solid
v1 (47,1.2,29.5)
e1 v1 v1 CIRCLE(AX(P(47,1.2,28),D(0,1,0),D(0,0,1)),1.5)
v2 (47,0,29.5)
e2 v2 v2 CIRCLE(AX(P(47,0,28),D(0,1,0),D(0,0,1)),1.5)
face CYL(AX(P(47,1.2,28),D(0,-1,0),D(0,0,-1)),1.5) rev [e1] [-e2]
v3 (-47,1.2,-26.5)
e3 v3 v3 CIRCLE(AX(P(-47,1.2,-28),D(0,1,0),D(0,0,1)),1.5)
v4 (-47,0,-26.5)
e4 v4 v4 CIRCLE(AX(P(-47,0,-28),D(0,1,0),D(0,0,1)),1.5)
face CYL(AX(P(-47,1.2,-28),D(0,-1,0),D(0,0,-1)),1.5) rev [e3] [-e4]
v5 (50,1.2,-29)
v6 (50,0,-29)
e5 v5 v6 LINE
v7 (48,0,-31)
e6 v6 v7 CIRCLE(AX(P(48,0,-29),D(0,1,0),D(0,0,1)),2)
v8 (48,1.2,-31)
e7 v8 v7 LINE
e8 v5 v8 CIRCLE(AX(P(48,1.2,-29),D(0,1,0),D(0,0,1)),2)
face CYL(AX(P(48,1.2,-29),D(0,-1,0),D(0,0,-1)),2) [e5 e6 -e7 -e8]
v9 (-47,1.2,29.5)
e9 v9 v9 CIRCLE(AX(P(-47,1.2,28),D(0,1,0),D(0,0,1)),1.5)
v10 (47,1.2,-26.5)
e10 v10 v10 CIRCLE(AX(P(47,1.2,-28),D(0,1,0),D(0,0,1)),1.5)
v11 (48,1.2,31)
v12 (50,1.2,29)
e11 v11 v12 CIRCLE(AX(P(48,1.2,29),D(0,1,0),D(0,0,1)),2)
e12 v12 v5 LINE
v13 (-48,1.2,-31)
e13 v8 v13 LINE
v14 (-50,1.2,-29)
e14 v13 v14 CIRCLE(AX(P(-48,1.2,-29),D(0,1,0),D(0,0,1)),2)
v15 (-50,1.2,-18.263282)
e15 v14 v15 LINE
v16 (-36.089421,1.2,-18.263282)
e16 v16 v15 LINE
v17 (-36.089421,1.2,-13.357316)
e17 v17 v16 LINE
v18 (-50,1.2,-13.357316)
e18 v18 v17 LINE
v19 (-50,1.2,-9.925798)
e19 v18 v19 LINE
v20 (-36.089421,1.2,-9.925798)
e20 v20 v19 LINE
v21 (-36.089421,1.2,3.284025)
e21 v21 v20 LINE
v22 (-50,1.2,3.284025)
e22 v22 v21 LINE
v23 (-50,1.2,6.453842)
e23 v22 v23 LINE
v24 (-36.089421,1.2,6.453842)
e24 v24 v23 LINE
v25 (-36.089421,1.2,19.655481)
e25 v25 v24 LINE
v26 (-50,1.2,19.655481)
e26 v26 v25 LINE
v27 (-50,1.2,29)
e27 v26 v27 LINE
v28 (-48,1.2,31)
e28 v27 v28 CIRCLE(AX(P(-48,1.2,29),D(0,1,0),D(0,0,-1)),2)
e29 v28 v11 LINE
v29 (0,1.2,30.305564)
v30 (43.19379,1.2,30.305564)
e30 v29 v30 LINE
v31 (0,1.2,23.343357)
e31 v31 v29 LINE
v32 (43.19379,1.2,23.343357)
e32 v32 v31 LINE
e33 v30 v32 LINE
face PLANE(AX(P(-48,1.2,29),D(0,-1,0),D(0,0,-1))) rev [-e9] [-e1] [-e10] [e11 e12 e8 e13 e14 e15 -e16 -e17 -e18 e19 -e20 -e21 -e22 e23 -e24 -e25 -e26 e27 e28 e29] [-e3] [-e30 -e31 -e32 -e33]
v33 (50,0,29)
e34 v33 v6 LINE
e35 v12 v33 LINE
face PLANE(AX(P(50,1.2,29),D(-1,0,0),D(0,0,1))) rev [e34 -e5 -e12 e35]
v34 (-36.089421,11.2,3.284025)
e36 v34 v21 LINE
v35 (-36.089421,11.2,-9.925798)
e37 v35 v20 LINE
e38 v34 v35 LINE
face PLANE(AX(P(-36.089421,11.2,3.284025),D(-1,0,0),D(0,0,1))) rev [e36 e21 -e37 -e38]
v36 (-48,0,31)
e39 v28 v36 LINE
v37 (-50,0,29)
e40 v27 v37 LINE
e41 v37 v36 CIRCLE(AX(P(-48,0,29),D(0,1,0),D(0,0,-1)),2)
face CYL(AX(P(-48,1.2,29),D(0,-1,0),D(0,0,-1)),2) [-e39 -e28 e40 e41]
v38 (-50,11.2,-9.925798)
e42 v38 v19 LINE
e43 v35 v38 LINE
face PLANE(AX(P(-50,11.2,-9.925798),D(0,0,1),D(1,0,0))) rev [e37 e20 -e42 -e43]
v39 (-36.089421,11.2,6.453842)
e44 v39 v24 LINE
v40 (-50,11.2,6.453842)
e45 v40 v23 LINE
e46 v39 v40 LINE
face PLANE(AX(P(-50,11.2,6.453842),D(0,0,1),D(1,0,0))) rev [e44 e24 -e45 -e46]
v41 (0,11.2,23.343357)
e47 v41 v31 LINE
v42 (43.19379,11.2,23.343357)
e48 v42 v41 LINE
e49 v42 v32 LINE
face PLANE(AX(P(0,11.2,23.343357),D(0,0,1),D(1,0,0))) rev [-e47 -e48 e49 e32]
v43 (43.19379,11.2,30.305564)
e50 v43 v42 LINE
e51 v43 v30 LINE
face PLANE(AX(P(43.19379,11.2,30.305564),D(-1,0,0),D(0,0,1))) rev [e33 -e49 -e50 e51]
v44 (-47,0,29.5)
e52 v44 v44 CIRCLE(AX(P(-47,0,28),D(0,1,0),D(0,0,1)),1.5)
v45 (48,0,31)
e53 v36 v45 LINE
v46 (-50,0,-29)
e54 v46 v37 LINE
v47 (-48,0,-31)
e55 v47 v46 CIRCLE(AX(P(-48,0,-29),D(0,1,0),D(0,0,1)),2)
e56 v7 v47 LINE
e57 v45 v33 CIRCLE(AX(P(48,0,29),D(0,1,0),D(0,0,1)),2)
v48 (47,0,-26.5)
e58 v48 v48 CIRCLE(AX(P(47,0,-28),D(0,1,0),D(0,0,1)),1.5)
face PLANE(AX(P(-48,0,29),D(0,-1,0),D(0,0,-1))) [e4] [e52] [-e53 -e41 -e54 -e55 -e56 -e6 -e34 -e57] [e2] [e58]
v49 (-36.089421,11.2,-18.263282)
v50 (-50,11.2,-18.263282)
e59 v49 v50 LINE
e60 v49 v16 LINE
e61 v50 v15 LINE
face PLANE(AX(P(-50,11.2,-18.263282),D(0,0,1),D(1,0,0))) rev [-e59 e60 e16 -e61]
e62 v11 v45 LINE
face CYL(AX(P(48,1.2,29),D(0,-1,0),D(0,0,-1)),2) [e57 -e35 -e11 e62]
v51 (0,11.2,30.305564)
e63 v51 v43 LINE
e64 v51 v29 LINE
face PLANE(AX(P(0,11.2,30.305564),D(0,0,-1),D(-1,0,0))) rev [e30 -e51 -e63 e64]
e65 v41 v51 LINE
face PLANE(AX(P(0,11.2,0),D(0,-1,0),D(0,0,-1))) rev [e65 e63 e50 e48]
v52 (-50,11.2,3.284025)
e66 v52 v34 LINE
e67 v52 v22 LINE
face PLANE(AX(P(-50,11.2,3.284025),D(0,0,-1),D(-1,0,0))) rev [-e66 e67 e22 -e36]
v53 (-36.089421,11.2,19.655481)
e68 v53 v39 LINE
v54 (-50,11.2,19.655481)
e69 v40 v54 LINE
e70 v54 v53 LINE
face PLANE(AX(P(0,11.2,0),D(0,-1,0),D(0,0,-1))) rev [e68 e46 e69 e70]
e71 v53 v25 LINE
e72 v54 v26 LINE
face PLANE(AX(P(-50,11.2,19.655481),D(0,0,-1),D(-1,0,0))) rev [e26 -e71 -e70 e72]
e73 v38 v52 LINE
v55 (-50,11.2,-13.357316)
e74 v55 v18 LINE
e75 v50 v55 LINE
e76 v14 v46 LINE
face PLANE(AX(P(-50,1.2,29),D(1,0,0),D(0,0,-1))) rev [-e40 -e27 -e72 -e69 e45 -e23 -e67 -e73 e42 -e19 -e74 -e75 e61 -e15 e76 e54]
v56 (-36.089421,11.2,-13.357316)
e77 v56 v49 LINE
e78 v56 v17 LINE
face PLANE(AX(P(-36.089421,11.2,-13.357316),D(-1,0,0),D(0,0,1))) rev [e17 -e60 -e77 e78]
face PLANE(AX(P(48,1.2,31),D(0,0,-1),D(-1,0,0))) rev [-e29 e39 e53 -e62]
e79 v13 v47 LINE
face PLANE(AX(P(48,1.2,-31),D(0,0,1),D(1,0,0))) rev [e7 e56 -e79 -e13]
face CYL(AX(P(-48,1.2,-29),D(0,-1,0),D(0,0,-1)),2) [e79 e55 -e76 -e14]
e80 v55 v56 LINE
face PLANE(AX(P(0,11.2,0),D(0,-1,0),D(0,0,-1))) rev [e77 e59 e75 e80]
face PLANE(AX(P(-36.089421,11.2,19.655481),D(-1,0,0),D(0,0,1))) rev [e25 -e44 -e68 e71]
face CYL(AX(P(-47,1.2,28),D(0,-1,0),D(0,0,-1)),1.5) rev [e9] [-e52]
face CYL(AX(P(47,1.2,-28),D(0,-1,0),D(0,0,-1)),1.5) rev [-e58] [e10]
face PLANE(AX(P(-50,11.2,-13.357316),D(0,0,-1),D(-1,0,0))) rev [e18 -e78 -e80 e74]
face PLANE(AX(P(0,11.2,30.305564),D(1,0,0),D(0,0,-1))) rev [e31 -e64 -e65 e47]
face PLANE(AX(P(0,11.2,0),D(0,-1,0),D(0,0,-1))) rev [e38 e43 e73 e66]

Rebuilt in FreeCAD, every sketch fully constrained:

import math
import FreeCAD as App
import Part
import Sketcher
from FreeCAD import Vector

doc = App.newDocument("Part")
body = doc.addObject("PartDesign::Body", "Body")

# Sketch on XZ plane
sketch1 = doc.addObject("Sketcher::SketchObject", "Sketch")
body.addObject(sketch1)
sketch1.AttachmentSupport = (doc.XZ_Plane, [""])
sketch1.MapMode = "FlatFace"
sketch1.addGeometry([
    Part.LineSegment(Vector(-48, 31, 0), Vector(48, 31, 0)),  # 0
    Part.ArcOfCircle(Part.Circle(Vector(48, 29, 0), Vector(0, 0, 1), 2), math.radians(0), math.radians(90)),  # 1
    Part.LineSegment(Vector(50, 29, 0), Vector(50, -29, 0)),  # 2
    Part.ArcOfCircle(Part.Circle(Vector(48, -29, 0), Vector(0, 0, 1), 2), math.radians(-90), math.radians(0)),  # 3
    Part.LineSegment(Vector(48, -31, 0), Vector(-48, -31, 0)),  # 4
    Part.ArcOfCircle(Part.Circle(Vector(-48, -29, 0), Vector(0, 0, 1), 2), math.radians(-180), math.radians(-90)),  # 5
    Part.LineSegment(Vector(-50, -29, 0), Vector(-50, 29, 0)),  # 6
    Part.ArcOfCircle(Part.Circle(Vector(-48, 29, 0), Vector(0, 0, 1), 2), math.radians(90), math.radians(180)),  # 7
    Part.Circle(Vector(47, 28, 0), Vector(0, 0, 1), 1.5),  # 8
    Part.Circle(Vector(-47, 28, 0), Vector(0, 0, 1), 1.5),  # 9
    Part.Circle(Vector(47, -28, 0), Vector(0, 0, 1), 1.5),  # 10
    Part.Circle(Vector(-47, -28, 0), Vector(0, 0, 1), 1.5),  # 11
], False)
sketch1.addConstraint([
    Sketcher.Constraint("Tangent", 0, 2, 1, 2),
    Sketcher.Constraint("Tangent", 1, 1, 2, 1),
    Sketcher.Constraint("Tangent", 2, 2, 3, 2),
    Sketcher.Constraint("Tangent", 3, 1, 4, 1),
    Sketcher.Constraint("Tangent", 4, 2, 5, 2),
    Sketcher.Constraint("Tangent", 5, 1, 6, 1),
    Sketcher.Constraint("Tangent", 6, 2, 7, 2),
    Sketcher.Constraint("Tangent", 7, 1, 0, 1),
    Sketcher.Constraint("Horizontal", 0),
    Sketcher.Constraint("Vertical", 2),
    Sketcher.Constraint("Horizontal", 4),
    Sketcher.Constraint("Vertical", 6),
    Sketcher.Constraint("Equal", 1, 3),
    Sketcher.Constraint("Equal", 3, 5),
    Sketcher.Constraint("Equal", 5, 7),
    Sketcher.Constraint("Equal", 8, 9),
    Sketcher.Constraint("Equal", 9, 10),
    Sketcher.Constraint("Equal", 10, 11),
    Sketcher.Constraint("Symmetric", 1, 3, 5, 3, -1, 1),
    Sketcher.Constraint("Symmetric", 9, 3, 10, 3, -1, 1),
    Sketcher.Constraint("Symmetric", 8, 3, 11, 3, -1, 1),
    Sketcher.Constraint("Symmetric", 8, 3, 9, 3, -2),
    Sketcher.Constraint("Diameter", 8, 3.0),
    Sketcher.Constraint("Radius", 1, 2.0),
    Sketcher.Constraint("DistanceX", 0, 1, 0, 2, 96.0),
    Sketcher.Constraint("DistanceY", 2, 2, 2, 1, 58.0),
    Sketcher.Constraint("DistanceX", -1, 1, 8, 3, 47.0),
    Sketcher.Constraint("DistanceY", -1, 1, 8, 3, 28.0),
])
pad1 = doc.addObject("PartDesign::Pad", "Pad")
body.addObject(pad1)
pad1.Profile = sketch1
pad1.Length = 1.2
pad1.Reversed = True

# Sketch on XZ plane
sketch2 = doc.addObject("Sketcher::SketchObject", "Sketch001")
body.addObject(sketch2)
sketch2.AttachmentSupport = (doc.XZ_Plane, [""])
sketch2.MapMode = "FlatFace"
sketch2.AttachmentOffset = App.Placement(Vector(0, 0, -1.2), App.Rotation())
sketch2.addGeometry([
    Part.LineSegment(Vector(-50, 6.453842, 0), Vector(-50, 19.655481, 0)),  # 0
    Part.LineSegment(Vector(-50, 19.655481, 0), Vector(-36.089421, 19.655481, 0)),  # 1
    Part.LineSegment(Vector(-36.089421, 19.655481, 0), Vector(-36.089421, 6.453842, 0)),  # 2
    Part.LineSegment(Vector(-36.089421, 6.453842, 0), Vector(-50, 6.453842, 0)),  # 3
    Part.LineSegment(Vector(-50, -9.925798, 0), Vector(-50, 3.284025, 0)),  # 4
    Part.LineSegment(Vector(-50, 3.284025, 0), Vector(-36.089421, 3.284025, 0)),  # 5
    Part.LineSegment(Vector(-36.089421, 3.284025, 0), Vector(-36.089421, -9.925798, 0)),  # 6
    Part.LineSegment(Vector(-36.089421, -9.925798, 0), Vector(-50, -9.925798, 0)),  # 7
    Part.LineSegment(Vector(-50, -18.263282, 0), Vector(-50, -13.357316, 0)),  # 8
    Part.LineSegment(Vector(-50, -13.357316, 0), Vector(-36.089421, -13.357316, 0)),  # 9
    Part.LineSegment(Vector(-36.089421, -13.357316, 0), Vector(-36.089421, -18.263282, 0)),  # 10
    Part.LineSegment(Vector(-36.089421, -18.263282, 0), Vector(-50, -18.263282, 0)),  # 11
], False)
sketch2.addConstraint([
    Sketcher.Constraint("Coincident", 0, 2, 1, 1),
    Sketcher.Constraint("Coincident", 1, 2, 2, 1),
    Sketcher.Constraint("Coincident", 2, 2, 3, 1),
    Sketcher.Constraint("Coincident", 3, 2, 0, 1),
    Sketcher.Constraint("Coincident", 4, 2, 5, 1),
    Sketcher.Constraint("Coincident", 5, 2, 6, 1),
    Sketcher.Constraint("Coincident", 6, 2, 7, 1),
    Sketcher.Constraint("Coincident", 7, 2, 4, 1),
    Sketcher.Constraint("Coincident", 8, 2, 9, 1),
    Sketcher.Constraint("Coincident", 9, 2, 10, 1),
    Sketcher.Constraint("Coincident", 10, 2, 11, 1),
    Sketcher.Constraint("Coincident", 11, 2, 8, 1),
    Sketcher.Constraint("Vertical", 0),
    Sketcher.Constraint("Horizontal", 1),
    Sketcher.Constraint("Vertical", 2),
    Sketcher.Constraint("Horizontal", 3),
    Sketcher.Constraint("Vertical", 4),
    Sketcher.Constraint("Horizontal", 5),
    Sketcher.Constraint("Vertical", 6),
    Sketcher.Constraint("Horizontal", 7),
    Sketcher.Constraint("Vertical", 8),
    Sketcher.Constraint("Horizontal", 9),
    Sketcher.Constraint("Vertical", 10),
    Sketcher.Constraint("Horizontal", 11),
    Sketcher.Constraint("Vertical", 3, 2, 4, 2),
    Sketcher.Constraint("Vertical", 2, 2, 5, 2),
    Sketcher.Constraint("Vertical", 7, 2, 8, 2),
    Sketcher.Constraint("Vertical", 6, 2, 9, 2),
    Sketcher.Constraint("DistanceX", 0, 2, -1, 1, 50.0),
    Sketcher.Constraint("DistanceX", 1, 1, 1, 2, 13.910579),
    Sketcher.Constraint("DistanceY", 0, 1, 0, 2, 13.201639),
    Sketcher.Constraint("DistanceY", 6, 2, -1, 1, 9.925798),
    Sketcher.Constraint("DistanceY", 4, 1, 4, 2, 13.209824),
    Sketcher.Constraint("DistanceY", 8, 1, 8, 2, 4.905965),
    Sketcher.Constraint("DistanceY", -1, 1, 0, 2, 19.655481),
    Sketcher.Constraint("DistanceY", 10, 2, -1, 1, 18.263282),
])
pad2 = doc.addObject("PartDesign::Pad", "Pad001")
body.addObject(pad2)
pad2.Profile = sketch2
pad2.Length = 10
pad2.Reversed = True

# Sketch on XZ plane
sketch3 = doc.addObject("Sketcher::SketchObject", "Sketch002")
body.addObject(sketch3)
sketch3.AttachmentSupport = (doc.XZ_Plane, [""])
sketch3.MapMode = "FlatFace"
sketch3.AttachmentOffset = App.Placement(Vector(0, 0, -1.2), App.Rotation())
sketch3.addGeometry([
    Part.LineSegment(Vector(0, 23.343357, 0), Vector(0, 30.305564, 0)),
    Part.LineSegment(Vector(0, 30.305564, 0), Vector(43.19379, 30.305564, 0)),
    Part.LineSegment(Vector(43.19379, 30.305564, 0), Vector(43.19379, 23.343357, 0)),
    Part.LineSegment(Vector(43.19379, 23.343357, 0), Vector(0, 23.343357, 0)),
], False)
sketch3.addConstraint([
    Sketcher.Constraint("Coincident", 0, 2, 1, 1),
    Sketcher.Constraint("Coincident", 1, 2, 2, 1),
    Sketcher.Constraint("Coincident", 2, 2, 3, 1),
    Sketcher.Constraint("Coincident", 3, 2, 0, 1),
    Sketcher.Constraint("Vertical", 0),
    Sketcher.Constraint("Horizontal", 1),
    Sketcher.Constraint("Vertical", 2),
    Sketcher.Constraint("Horizontal", 3),
    Sketcher.Constraint("PointOnObject", 0, 2, -2),
    Sketcher.Constraint("DistanceX", 1, 1, 1, 2, 43.19379),
    Sketcher.Constraint("DistanceY", 0, 1, 0, 2, 6.962206),
    Sketcher.Constraint("DistanceY", -1, 1, 0, 2, 30.305564),
])
pad3 = doc.addObject("PartDesign::Pad", "Pad002")
body.addObject(pad3)
pad3.Profile = sketch3
pad3.Length = 10
pad3.Reversed = True

doc.recompute()
